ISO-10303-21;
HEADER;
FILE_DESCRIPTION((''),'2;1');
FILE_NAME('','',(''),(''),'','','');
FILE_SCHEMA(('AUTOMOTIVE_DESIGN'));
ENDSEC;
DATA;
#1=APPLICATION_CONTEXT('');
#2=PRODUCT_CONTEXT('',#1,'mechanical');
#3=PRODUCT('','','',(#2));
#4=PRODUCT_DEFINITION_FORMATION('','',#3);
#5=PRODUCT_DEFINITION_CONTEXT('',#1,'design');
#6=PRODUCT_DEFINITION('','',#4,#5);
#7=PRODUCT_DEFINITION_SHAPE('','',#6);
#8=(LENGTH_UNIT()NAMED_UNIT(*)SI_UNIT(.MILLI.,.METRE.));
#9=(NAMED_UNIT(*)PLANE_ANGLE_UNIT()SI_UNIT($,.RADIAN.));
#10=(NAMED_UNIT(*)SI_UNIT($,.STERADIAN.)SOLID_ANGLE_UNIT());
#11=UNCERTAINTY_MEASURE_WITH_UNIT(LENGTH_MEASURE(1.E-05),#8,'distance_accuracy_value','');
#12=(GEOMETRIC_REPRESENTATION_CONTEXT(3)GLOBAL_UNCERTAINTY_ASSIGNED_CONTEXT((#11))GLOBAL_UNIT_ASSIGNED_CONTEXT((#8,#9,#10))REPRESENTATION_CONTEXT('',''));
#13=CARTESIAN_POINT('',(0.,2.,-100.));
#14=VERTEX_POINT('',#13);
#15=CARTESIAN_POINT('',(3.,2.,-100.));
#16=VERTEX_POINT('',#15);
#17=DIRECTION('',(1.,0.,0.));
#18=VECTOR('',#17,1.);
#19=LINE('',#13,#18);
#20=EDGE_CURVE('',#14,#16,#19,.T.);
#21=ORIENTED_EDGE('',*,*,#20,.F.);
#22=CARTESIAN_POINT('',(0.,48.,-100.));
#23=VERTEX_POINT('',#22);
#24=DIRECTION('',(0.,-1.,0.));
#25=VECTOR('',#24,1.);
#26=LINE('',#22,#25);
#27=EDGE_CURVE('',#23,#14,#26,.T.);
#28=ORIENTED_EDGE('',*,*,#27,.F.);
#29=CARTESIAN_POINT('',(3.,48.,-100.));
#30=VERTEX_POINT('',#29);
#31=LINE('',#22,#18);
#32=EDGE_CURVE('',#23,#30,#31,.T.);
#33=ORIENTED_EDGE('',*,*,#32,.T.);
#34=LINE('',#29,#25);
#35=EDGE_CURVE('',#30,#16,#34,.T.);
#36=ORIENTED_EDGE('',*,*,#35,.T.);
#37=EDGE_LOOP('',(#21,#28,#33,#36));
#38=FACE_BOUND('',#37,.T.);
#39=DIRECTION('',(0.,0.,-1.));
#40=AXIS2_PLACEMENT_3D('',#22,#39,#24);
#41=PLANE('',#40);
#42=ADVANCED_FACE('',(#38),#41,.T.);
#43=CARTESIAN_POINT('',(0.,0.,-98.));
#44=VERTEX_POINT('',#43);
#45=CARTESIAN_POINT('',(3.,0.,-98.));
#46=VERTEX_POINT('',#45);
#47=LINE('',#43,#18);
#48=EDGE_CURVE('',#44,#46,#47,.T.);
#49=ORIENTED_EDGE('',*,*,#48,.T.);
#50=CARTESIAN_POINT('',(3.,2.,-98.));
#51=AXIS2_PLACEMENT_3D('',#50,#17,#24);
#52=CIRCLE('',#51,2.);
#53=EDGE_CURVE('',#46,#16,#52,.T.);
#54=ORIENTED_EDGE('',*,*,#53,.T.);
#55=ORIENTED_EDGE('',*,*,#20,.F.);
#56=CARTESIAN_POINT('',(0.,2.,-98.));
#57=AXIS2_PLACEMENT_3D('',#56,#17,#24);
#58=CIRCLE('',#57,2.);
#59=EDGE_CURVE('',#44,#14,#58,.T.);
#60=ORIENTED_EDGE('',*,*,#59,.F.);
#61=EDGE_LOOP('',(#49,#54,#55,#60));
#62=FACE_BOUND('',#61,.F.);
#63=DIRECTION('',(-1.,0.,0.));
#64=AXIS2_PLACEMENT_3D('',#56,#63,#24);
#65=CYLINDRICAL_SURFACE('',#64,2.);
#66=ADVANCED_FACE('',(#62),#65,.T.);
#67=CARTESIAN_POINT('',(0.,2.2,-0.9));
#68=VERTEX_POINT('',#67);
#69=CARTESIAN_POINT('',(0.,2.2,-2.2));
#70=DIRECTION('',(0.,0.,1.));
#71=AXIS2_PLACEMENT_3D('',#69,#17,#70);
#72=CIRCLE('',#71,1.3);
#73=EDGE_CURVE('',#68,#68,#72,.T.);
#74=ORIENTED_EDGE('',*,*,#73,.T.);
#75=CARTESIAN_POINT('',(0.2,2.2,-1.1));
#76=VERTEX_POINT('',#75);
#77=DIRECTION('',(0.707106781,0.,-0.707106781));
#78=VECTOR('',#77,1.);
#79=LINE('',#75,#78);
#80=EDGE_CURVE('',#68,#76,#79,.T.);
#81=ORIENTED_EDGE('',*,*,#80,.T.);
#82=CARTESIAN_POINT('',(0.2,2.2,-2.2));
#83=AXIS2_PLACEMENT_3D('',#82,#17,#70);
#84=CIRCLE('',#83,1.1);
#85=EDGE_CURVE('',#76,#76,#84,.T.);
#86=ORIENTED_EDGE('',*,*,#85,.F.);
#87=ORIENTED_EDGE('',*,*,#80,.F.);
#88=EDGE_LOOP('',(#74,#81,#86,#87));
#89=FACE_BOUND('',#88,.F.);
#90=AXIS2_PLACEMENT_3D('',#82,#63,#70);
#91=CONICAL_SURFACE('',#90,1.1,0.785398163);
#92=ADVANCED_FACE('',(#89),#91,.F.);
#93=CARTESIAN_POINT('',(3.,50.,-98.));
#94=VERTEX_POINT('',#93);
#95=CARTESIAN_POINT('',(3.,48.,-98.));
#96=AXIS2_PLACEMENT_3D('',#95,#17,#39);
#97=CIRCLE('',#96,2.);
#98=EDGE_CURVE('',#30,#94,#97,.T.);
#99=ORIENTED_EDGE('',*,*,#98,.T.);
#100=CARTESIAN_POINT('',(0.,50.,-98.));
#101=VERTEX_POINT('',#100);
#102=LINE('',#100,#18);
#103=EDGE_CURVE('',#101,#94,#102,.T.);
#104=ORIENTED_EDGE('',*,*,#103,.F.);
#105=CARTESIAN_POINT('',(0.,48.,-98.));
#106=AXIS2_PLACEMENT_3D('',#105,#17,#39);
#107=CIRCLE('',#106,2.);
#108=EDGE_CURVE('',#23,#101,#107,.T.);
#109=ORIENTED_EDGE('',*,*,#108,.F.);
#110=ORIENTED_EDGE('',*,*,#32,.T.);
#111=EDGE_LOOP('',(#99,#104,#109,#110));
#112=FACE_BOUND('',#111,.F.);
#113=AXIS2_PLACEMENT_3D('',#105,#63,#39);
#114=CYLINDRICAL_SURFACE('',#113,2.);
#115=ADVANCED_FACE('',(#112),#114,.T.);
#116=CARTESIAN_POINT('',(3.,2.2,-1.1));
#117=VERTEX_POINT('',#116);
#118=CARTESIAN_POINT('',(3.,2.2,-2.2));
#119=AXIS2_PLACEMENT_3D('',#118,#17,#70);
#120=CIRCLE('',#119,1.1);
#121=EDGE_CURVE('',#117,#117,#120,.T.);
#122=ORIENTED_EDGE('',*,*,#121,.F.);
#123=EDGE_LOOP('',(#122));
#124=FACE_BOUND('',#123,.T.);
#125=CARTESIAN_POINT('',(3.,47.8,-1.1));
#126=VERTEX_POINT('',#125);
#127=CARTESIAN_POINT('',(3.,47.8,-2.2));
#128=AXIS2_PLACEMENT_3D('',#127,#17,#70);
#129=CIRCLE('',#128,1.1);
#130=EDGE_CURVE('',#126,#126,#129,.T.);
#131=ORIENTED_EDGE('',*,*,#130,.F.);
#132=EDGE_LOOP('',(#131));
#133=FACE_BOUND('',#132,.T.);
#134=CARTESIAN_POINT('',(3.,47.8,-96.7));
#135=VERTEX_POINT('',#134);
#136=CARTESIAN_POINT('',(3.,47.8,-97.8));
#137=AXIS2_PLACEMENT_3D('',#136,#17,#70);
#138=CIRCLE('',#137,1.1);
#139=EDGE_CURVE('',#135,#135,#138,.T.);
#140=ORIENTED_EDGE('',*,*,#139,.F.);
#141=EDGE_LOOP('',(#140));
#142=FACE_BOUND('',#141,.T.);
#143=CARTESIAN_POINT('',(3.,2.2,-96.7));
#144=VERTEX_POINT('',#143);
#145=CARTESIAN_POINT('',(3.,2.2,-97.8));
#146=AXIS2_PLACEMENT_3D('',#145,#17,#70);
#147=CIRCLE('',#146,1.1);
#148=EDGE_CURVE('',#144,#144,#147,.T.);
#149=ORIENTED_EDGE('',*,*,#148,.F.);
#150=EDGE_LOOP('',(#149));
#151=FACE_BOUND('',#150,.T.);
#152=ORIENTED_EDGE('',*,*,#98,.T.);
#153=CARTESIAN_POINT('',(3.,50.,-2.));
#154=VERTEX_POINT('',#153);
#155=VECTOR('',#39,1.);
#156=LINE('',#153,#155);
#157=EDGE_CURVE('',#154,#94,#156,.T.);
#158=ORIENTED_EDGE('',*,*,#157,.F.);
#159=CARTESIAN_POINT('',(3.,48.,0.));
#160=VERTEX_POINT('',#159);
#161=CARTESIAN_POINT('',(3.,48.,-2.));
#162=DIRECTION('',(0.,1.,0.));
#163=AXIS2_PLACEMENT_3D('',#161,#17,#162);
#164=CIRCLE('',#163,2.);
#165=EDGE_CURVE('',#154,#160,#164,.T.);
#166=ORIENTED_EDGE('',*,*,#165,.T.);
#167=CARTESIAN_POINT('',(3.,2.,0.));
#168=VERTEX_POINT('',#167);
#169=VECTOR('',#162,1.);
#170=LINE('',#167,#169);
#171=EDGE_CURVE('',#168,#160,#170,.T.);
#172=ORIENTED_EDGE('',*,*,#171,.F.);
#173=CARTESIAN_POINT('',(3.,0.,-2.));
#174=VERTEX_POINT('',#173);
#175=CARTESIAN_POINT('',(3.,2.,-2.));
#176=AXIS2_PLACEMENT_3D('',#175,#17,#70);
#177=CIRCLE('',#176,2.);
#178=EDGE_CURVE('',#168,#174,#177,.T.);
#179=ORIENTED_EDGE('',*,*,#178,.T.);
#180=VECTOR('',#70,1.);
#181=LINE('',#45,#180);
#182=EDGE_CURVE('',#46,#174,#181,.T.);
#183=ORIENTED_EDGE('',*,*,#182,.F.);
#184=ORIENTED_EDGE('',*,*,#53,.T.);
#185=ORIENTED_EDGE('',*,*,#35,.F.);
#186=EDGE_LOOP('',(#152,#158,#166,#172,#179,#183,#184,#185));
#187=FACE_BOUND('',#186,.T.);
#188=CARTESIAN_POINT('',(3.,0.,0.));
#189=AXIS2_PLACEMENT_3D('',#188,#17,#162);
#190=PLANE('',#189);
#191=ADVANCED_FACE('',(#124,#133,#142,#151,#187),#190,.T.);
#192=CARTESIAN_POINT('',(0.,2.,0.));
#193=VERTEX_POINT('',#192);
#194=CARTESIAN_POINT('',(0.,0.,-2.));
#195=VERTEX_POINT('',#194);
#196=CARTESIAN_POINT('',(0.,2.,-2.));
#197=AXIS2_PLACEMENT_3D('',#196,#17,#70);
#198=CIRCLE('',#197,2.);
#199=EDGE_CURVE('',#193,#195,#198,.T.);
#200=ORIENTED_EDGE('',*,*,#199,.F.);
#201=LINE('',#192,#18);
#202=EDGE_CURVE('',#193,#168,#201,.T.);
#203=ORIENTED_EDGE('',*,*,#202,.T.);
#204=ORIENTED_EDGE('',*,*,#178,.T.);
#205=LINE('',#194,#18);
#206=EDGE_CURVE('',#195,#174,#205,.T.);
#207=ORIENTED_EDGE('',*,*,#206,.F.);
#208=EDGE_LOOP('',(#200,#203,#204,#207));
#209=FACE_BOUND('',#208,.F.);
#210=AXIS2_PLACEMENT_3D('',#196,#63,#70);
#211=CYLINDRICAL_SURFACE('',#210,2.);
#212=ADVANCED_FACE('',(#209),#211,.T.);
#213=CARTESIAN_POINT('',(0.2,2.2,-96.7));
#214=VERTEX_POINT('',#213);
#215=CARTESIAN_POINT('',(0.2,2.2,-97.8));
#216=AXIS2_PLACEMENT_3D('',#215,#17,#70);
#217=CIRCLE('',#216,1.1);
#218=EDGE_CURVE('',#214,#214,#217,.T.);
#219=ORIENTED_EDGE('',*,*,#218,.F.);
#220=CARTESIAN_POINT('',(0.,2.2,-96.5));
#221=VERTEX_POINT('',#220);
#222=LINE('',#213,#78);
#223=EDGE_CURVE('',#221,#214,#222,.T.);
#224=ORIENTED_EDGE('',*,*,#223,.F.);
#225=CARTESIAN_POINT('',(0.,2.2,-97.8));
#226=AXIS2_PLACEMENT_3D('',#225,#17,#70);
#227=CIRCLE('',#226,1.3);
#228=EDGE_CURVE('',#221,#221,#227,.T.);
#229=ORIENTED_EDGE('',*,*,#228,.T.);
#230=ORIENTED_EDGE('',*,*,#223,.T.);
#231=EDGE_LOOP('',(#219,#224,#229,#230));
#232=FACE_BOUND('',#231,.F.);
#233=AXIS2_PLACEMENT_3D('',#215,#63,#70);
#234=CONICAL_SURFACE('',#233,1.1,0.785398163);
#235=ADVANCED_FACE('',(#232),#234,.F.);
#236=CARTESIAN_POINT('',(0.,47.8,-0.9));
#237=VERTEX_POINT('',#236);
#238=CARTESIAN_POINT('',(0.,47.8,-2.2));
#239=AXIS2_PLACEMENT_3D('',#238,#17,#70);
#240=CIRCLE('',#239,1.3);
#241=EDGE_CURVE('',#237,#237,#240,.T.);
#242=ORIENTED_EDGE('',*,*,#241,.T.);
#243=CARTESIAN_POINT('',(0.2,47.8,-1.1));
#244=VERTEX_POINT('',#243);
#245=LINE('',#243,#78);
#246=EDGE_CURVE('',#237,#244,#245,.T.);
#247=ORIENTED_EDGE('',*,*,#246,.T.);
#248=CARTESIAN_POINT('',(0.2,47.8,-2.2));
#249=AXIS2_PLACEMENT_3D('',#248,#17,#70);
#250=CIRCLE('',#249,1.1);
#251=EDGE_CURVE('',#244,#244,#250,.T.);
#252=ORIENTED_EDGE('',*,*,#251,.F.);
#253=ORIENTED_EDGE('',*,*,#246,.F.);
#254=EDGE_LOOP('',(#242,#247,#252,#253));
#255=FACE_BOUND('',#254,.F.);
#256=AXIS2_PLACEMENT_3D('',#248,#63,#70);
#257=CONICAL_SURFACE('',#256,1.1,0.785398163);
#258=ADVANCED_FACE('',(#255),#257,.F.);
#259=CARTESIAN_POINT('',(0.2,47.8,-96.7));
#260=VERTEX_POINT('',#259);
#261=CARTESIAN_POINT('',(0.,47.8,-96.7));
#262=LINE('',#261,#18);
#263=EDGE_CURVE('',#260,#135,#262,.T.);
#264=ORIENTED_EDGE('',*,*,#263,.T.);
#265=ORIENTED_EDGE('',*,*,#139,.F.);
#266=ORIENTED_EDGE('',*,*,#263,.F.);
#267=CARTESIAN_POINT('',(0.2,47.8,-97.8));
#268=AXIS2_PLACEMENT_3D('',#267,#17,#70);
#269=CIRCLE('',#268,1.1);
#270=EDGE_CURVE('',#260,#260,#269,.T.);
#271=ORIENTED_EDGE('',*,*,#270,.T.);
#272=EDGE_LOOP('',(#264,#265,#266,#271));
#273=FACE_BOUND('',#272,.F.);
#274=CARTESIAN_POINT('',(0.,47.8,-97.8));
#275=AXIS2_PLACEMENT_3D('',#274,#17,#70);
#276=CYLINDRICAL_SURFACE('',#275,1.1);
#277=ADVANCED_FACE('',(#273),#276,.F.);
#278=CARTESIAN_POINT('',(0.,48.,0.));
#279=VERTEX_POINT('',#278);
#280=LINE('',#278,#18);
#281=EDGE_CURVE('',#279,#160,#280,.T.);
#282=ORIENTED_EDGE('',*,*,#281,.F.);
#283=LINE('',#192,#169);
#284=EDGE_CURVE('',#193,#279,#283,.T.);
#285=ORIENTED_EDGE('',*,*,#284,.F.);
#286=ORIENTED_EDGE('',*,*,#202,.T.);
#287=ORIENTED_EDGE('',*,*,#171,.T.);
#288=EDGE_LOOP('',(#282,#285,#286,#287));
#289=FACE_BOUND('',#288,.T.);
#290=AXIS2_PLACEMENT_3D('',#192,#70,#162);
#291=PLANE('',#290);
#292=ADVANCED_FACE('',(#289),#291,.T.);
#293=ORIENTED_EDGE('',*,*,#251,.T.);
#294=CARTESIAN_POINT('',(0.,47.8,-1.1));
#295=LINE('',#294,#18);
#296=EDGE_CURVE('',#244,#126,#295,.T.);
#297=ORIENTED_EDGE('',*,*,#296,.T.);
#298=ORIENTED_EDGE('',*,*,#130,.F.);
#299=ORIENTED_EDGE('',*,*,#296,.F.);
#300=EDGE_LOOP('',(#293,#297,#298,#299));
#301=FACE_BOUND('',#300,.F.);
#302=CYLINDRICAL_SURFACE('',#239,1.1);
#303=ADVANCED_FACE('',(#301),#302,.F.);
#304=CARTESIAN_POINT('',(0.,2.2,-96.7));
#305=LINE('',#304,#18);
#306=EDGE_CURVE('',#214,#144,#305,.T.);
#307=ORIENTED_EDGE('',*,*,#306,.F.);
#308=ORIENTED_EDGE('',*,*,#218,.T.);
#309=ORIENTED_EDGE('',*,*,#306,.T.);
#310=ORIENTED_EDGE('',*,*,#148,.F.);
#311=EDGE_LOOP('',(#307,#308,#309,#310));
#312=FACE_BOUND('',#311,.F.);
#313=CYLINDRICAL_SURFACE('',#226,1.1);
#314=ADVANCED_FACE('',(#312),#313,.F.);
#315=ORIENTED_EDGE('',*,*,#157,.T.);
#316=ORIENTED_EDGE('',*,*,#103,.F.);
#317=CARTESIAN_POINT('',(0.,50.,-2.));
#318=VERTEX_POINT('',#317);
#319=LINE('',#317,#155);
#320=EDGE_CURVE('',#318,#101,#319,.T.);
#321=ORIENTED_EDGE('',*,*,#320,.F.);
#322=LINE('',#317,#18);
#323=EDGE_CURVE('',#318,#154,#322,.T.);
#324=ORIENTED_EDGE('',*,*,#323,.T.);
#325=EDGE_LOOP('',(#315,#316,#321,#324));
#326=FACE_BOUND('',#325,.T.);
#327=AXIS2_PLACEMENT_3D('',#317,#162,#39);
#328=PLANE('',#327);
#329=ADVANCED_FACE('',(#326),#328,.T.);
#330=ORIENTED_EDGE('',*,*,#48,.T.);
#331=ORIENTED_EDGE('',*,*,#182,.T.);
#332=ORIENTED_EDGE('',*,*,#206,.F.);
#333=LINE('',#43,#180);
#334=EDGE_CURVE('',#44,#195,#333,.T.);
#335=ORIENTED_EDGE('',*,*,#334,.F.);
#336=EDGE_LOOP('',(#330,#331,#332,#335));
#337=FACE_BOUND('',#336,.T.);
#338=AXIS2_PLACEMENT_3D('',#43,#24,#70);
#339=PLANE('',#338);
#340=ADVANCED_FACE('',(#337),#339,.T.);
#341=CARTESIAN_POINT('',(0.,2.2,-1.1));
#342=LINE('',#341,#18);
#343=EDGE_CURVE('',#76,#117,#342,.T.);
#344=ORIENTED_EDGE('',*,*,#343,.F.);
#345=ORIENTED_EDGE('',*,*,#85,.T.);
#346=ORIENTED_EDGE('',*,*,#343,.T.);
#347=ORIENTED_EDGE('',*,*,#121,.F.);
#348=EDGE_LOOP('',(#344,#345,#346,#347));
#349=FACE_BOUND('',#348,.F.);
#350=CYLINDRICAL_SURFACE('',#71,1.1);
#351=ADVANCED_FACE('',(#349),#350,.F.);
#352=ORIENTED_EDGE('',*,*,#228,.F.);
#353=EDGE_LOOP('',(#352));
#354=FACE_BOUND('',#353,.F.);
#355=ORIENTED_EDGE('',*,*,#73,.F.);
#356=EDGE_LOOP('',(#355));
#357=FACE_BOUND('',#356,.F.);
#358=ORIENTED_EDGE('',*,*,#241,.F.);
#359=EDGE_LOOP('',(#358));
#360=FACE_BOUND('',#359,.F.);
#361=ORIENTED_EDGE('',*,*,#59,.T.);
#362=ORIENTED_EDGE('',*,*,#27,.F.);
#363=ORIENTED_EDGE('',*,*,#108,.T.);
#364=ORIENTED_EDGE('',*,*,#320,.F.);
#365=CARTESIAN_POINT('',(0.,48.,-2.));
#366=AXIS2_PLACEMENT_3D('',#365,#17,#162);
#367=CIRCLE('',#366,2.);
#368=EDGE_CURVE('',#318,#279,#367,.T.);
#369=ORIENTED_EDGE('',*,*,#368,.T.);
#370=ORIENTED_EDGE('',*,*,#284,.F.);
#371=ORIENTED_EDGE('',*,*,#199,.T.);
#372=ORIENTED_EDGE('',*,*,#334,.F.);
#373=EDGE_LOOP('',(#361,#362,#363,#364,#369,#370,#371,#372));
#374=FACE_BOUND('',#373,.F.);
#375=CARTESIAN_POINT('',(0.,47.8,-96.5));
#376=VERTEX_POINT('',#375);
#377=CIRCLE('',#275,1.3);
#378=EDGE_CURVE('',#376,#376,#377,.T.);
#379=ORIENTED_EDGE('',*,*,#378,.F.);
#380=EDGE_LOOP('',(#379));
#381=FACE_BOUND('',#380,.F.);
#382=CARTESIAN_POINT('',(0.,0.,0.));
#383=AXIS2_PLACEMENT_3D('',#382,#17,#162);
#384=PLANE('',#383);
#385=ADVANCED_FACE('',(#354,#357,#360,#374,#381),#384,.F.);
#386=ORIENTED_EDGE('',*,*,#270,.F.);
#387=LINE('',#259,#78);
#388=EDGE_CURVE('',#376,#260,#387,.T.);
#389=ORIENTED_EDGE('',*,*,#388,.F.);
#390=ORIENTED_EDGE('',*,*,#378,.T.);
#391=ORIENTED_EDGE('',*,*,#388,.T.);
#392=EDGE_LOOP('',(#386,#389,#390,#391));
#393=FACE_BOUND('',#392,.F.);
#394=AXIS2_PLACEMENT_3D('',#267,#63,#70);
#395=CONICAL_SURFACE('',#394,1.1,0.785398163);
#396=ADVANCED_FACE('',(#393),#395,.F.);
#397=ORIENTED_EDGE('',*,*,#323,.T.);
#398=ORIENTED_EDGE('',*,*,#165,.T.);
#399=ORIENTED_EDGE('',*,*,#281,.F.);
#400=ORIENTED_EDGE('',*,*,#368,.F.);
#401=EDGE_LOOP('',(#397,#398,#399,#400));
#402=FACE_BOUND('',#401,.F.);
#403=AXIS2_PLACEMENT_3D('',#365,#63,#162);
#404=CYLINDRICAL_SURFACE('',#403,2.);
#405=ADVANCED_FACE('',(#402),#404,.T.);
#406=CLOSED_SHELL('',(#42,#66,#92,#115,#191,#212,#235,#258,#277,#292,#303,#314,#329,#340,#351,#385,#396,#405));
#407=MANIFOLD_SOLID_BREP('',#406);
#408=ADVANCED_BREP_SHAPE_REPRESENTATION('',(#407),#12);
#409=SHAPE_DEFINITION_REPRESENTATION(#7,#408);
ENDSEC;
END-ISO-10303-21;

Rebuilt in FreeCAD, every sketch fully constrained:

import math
import FreeCAD as App
import Part
import Sketcher
from FreeCAD import Vector


def edges_at(feature, points):
    """Names of the edges that pass closest to the given points."""
    edges = feature.Shape.Edges
    near = lambda p: min(range(len(edges)), key=lambda i: edges[i].distToShape(Part.Vertex(*p))[0])
    return sorted({f"Edge{near(p) + 1}" for p in points})

doc = App.newDocument("Part")
body = doc.addObject("PartDesign::Body", "Body")

sketch1 = body.newObject("Sketcher::SketchObject", "Sketch")
sketch1.AttachmentSupport = (doc.getObject("YZ_Plane"), [""])
sketch1.MapMode = "FlatFace"
sketch1.addGeometry([
    Part.LineSegment(Vector(48, 0, 0), Vector(2, 0, 0)),
    Part.ArcOfCircle(Part.Circle(Vector(2, -2, 0), Vector(0, 0, 1), 2), math.radians(90), math.radians(180)),
    Part.LineSegment(Vector(0, -2, 0), Vector(0, -98, 0)),
    Part.ArcOfCircle(Part.Circle(Vector(2, -98, 0), Vector(0, 0, 1), 2), math.radians(180), math.radians(270)),
    Part.LineSegment(Vector(2, -100, 0), Vector(48, -100, 0)),
    Part.ArcOfCircle(Part.Circle(Vector(48, -98, 0), Vector(0, 0, 1), 2), math.radians(-90), math.radians(0)),
    Part.LineSegment(Vector(50, -98, 0), Vector(50, -2, 0)),
    Part.ArcOfCircle(Part.Circle(Vector(48, -2, 0), Vector(0, 0, 1), 2), math.radians(0), math.radians(90)),
], False)
sketch1.addConstraint([
    Sketcher.Constraint("Tangent", 0, 2, 1, 1),
    Sketcher.Constraint("Tangent", 1, 2, 2, 1),
    Sketcher.Constraint("Tangent", 2, 2, 3, 1),
    Sketcher.Constraint("Tangent", 3, 2, 4, 1),
    Sketcher.Constraint("Tangent", 4, 2, 5, 1),
    Sketcher.Constraint("Tangent", 5, 2, 6, 1),
    Sketcher.Constraint("Tangent", 6, 2, 7, 1),
    Sketcher.Constraint("Tangent", 7, 2, 0, 1),
    Sketcher.Constraint("Horizontal", 0),
    Sketcher.Constraint("Vertical", 2),
    Sketcher.Constraint("Horizontal", 4),
    Sketcher.Constraint("Vertical", 6),
    Sketcher.Constraint("Equal", 1, 3),
    Sketcher.Constraint("Equal", 3, 5),
    Sketcher.Constraint("Equal", 5, 7),
    Sketcher.Constraint("PointOnObject", 0, 2, -1),
    Sketcher.Constraint("PointOnObject", 1, 2, -2),
    Sketcher.Constraint("Radius", 1, 2.0),
    Sketcher.Constraint("DistanceY", 3, 2, -1, 1, 100.0),
    Sketcher.Constraint("DistanceX", -1, 1, 5, 2, 50.0),
])
pad1 = body.newObject("PartDesign::Pad", "Pad")
pad1.Profile = sketch1
pad1.Length = 3

sketch2 = body.newObject("Sketcher::SketchObject", "Sketch001")
sketch2.AttachmentSupport = (doc.getObject("YZ_Plane"), [""])
sketch2.MapMode = "FlatFace"
sketch2.addGeometry([
    Part.Circle(Vector(47.8, -2.2, 0), Vector(0, 0, 1), 1.1),
    Part.Circle(Vector(2.2, -2.2, 0), Vector(0, 0, 1), 1.1),
    Part.Circle(Vector(47.8, -97.8, 0), Vector(0, 0, 1), 1.1),
    Part.Circle(Vector(2.2, -97.8, 0), Vector(0, 0, 1), 1.1),
], False)
sketch2.addConstraint([
    Sketcher.Constraint("Equal", 0, 1),
    Sketcher.Constraint("Equal", 1, 2),
    Sketcher.Constraint("Equal", 2, 3),
    Sketcher.Constraint("Horizontal", 0, 3, 1, 3),
    Sketcher.Constraint("Horizontal", 2, 3, 3, 3),
    Sketcher.Constraint("Vertical", 0, 3, 2, 3),
    Sketcher.Constraint("Vertical", 1, 3, 3, 3),
    Sketcher.Constraint("Diameter", 0, 2.2),
    Sketcher.Constraint("DistanceX", -1, 1, 0, 3, 47.8),
    Sketcher.Constraint("DistanceY", 0, 3, -1, 1, 2.2),
    Sketcher.Constraint("DistanceX", -1, 1, 1, 3, 2.2),
    Sketcher.Constraint("DistanceY", 2, 3, -1, 1, 97.8),
])
doc.recompute()
hole = body.newObject("PartDesign::Hole", "Hole")
hole.Profile = sketch2
hole.ThreadType = "None"
hole.Diameter = 2.2
hole.DepthType = "Dimension"
hole.Depth = 6.3
hole.DrillPoint = "Angled"
hole.DrillPointAngle = 118
hole.Reversed = True
doc.recompute()

chamfer = body.newObject("PartDesign::Chamfer", "Chamfer")
chamfer.Base = (hole, edges_at(hole, [
    (0, 2.2, -98.9),
    (0, 47.8, -98.9),
    (0, 2.2, -3.3),
    (0, 47.8, -3.3),
]))
chamfer.Size = 0.2

doc.recompute()
